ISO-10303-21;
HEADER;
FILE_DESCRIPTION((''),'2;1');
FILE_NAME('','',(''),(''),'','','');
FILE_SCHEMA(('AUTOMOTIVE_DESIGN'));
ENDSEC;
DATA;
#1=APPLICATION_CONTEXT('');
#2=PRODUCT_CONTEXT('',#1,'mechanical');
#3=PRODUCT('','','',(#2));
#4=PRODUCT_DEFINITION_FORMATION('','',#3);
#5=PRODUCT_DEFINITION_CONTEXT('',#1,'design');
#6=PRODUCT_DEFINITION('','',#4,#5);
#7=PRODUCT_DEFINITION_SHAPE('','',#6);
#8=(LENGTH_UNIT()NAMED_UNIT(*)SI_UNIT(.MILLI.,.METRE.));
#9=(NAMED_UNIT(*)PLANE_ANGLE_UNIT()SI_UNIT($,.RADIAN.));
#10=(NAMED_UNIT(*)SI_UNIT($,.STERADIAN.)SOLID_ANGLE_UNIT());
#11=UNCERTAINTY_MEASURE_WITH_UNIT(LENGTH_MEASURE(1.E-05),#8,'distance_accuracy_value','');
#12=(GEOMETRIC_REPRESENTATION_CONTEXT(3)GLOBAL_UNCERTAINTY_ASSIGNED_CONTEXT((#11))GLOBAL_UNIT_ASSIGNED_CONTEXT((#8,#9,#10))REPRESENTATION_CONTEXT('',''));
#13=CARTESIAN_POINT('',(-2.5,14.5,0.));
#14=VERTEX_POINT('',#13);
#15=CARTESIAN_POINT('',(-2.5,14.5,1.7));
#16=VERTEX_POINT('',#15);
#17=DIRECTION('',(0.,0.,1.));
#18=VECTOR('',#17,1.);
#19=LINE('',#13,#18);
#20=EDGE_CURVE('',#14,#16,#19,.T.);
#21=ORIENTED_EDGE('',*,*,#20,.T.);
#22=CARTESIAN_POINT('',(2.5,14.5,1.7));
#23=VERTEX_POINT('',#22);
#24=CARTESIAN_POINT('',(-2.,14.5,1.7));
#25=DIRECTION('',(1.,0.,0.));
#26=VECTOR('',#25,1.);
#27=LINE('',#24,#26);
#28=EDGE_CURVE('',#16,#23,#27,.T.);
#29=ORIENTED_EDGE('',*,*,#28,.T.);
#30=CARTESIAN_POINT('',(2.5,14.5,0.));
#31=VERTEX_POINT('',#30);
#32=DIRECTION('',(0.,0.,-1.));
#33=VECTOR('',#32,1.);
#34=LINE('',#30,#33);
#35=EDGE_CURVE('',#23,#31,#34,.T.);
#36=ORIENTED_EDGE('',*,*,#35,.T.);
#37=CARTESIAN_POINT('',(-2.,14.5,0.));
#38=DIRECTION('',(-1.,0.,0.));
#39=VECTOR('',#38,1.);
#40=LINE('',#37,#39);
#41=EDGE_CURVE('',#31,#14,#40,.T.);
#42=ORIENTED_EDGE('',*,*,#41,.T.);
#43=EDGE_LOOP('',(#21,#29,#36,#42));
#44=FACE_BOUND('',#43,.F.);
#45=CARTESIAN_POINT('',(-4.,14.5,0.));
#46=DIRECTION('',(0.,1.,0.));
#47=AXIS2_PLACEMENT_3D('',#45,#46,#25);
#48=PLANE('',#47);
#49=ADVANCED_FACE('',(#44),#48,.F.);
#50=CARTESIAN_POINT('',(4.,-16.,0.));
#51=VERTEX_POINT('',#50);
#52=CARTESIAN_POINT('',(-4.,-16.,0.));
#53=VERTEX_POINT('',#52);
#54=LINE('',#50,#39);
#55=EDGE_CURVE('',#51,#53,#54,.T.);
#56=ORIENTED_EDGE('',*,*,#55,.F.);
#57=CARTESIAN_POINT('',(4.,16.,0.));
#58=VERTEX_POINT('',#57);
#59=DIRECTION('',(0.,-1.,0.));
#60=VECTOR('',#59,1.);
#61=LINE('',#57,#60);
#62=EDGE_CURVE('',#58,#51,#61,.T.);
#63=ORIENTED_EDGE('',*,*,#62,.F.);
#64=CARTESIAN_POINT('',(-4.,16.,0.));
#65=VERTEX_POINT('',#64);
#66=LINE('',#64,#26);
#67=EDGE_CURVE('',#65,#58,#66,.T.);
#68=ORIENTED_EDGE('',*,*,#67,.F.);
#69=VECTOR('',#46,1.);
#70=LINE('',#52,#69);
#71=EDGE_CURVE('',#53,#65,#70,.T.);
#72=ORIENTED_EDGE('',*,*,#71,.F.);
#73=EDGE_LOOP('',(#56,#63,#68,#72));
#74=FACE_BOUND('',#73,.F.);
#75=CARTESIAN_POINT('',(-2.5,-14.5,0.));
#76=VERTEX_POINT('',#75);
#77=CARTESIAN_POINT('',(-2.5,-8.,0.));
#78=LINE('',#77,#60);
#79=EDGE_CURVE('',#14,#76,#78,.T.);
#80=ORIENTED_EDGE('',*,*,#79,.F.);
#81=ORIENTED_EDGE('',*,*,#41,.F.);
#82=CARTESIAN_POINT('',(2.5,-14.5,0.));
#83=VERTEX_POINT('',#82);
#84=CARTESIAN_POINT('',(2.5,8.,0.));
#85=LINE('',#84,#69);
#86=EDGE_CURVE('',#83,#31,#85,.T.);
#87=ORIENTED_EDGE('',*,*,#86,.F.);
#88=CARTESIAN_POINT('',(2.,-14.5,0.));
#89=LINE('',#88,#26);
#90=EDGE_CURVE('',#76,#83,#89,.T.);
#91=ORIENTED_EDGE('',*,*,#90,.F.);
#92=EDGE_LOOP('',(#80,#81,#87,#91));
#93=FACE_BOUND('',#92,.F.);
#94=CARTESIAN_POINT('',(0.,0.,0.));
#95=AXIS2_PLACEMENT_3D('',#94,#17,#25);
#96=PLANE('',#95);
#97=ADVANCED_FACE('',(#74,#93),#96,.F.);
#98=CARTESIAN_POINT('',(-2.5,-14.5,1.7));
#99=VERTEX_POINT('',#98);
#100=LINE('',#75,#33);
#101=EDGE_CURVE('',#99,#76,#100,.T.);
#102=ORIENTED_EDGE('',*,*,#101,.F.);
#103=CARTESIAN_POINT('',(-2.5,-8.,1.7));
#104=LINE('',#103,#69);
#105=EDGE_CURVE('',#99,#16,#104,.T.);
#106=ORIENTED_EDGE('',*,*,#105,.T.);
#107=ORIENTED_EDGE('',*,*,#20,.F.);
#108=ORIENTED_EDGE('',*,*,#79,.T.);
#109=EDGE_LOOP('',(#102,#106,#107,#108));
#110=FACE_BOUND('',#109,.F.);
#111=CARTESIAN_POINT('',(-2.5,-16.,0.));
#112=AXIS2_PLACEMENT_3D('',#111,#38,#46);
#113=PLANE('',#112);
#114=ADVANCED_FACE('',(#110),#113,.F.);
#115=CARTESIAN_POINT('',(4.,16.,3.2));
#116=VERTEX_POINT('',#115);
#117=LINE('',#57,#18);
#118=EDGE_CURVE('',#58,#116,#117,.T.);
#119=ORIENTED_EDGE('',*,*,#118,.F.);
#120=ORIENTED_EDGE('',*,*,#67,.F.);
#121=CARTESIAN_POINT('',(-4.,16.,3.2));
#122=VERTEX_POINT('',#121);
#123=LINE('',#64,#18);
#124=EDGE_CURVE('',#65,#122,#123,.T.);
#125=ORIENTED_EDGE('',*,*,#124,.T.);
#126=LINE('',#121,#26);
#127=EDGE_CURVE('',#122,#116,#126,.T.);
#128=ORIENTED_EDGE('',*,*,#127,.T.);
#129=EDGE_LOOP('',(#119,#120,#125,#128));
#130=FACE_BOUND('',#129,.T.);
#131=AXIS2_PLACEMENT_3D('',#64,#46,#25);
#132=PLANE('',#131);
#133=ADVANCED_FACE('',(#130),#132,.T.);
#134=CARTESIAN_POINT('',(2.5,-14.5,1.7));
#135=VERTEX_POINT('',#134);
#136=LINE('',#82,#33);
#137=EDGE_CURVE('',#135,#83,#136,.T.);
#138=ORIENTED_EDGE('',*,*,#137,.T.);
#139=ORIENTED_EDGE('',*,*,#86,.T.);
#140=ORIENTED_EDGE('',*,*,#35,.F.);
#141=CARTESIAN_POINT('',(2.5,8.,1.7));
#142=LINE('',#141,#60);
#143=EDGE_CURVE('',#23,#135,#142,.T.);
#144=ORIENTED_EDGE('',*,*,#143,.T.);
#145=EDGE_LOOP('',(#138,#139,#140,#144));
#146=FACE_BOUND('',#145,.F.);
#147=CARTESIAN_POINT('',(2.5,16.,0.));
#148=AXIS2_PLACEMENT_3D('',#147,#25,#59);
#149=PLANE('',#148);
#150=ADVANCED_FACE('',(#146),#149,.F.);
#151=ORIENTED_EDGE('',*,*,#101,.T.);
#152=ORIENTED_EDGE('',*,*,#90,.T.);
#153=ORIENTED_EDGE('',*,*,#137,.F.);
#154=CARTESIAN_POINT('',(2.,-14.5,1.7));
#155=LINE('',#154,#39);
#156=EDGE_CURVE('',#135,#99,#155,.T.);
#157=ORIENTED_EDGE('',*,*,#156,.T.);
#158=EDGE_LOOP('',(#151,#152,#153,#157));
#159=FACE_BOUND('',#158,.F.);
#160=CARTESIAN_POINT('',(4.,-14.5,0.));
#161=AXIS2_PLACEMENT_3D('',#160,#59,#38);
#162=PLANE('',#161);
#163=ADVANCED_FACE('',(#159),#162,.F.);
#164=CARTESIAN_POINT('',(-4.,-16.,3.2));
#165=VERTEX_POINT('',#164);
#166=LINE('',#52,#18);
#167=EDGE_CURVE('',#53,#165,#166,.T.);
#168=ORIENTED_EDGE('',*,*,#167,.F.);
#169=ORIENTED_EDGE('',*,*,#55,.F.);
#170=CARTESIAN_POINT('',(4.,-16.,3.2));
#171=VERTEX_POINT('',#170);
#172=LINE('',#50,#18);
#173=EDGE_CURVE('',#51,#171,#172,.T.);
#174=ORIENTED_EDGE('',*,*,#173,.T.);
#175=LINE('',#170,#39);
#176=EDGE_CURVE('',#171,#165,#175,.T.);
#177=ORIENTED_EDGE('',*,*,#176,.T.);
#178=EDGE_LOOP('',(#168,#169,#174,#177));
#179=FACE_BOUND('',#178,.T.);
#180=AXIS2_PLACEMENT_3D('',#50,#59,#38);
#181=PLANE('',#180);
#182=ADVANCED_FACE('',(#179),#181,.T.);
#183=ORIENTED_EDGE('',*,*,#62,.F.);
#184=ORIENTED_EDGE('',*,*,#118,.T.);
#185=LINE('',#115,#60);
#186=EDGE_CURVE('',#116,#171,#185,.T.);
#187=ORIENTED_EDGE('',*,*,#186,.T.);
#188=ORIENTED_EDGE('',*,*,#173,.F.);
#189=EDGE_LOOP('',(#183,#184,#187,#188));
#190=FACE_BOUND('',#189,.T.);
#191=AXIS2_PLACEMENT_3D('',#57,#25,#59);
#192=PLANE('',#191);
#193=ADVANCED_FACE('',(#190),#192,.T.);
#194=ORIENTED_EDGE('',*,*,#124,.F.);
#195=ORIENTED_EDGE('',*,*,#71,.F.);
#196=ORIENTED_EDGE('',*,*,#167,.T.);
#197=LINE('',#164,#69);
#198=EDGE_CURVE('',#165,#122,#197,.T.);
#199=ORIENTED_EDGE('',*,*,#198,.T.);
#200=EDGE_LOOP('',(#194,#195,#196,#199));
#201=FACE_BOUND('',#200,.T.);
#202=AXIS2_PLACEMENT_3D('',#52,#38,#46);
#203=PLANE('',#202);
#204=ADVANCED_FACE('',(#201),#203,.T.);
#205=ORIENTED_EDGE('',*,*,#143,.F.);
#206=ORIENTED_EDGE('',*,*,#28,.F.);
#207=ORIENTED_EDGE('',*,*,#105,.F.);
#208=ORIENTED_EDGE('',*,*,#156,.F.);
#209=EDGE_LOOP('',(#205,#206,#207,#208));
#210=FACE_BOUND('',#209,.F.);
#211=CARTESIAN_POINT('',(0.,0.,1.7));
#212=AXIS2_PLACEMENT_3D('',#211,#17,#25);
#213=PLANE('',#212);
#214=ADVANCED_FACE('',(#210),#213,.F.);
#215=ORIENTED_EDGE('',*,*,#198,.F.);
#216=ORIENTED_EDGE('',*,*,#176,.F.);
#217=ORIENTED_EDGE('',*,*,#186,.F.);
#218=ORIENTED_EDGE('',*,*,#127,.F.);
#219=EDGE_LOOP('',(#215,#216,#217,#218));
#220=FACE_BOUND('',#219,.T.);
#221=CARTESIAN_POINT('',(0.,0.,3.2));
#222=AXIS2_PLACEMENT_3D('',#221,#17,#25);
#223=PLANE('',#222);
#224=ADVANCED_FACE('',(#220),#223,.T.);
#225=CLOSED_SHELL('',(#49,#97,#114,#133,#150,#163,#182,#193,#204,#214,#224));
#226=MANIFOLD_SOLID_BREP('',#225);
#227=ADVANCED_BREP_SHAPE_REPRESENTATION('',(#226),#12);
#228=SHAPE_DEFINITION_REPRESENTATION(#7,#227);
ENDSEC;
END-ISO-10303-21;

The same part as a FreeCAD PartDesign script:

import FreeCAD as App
import Part
import Sketcher


def faces_at(feature, points):
    """Names of the faces that lie closest to the given points."""
    faces = feature.Shape.Faces
    near = lambda p: min(range(len(faces)), key=lambda i: faces[i].distToShape(Part.Vertex(*p))[0])
    return sorted({f"Face{near(p) + 1}" for p in points})


def add_polygon(sketch, points):
    """Adds a closed chain of lines whose ends are joined by coincident constraints."""
    first, n = sketch.GeometryCount, len(points)
    for a, b in zip(points, points[1:] + points[:1]):
        sketch.addGeometry(Part.LineSegment(App.Vector(*a, 0), App.Vector(*b, 0)), False)
    for i in range(n):
        sketch.addConstraint(Sketcher.Constraint("Coincident", first + i, 2, first + (i + 1) % n, 1))

doc = App.newDocument("Part")
body = doc.addObject("PartDesign::Body", "Body")

# Sketch on XY plane
sketch1 = body.newObject("Sketcher::SketchObject", "Sketch")
sketch1.AttachmentSupport = (doc.getObject("XY_Plane"), [""])
sketch1.MapMode = "FlatFace"
add_polygon(sketch1, [(4, 16), (-4, 16), (-4, -16), (4, -16)])  # lines 0-3
sketch1.addConstraint([
    Sketcher.Constraint("Horizontal", 0),
    Sketcher.Constraint("Vertical", 1),
    Sketcher.Constraint("Horizontal", 2),
    Sketcher.Constraint("Vertical", 3),
    Sketcher.Constraint("Symmetric", 0, 2, 2, 2, -1, 1),
    Sketcher.Constraint("DistanceX", 0, 2, 0, 1, 8.0),
    Sketcher.Constraint("DistanceY", 1, 2, 1, 1, 32.0),
])
pad1 = body.newObject("PartDesign::Pad", "Pad")
pad1.Profile = sketch1
pad1.Length = 3.2
doc.recompute()

thickness = body.newObject("PartDesign::Thickness", "Thickness")
thickness.Base = (pad1, faces_at(pad1, [(1.333, 5.333, 0)]))
thickness.Value = 1.5
thickness.Reversed = True
thickness.Join = "Intersection"

doc.recompute()
